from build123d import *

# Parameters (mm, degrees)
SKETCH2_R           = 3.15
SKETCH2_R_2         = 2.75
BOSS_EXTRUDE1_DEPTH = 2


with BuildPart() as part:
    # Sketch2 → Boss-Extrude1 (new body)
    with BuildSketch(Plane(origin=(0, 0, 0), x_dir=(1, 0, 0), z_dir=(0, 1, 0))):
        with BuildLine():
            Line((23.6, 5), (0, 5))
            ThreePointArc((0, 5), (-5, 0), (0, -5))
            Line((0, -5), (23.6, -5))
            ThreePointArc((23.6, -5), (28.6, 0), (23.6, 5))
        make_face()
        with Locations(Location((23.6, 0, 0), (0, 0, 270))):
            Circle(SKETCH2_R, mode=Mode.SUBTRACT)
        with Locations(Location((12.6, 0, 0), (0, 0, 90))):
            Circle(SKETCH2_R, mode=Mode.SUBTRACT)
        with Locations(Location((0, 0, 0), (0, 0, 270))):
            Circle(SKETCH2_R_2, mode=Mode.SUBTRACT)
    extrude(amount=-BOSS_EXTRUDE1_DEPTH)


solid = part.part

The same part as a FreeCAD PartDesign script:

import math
import FreeCAD as App
import Part
import Sketcher

doc = App.newDocument("Part")
body = doc.addObject("PartDesign::Body", "Body")

sketch1 = body.newObject("Sketcher::SketchObject", "Sketch")
sketch1.AttachmentSupport = (doc.getObject("XZ_Plane"), [""])
sketch1.MapMode = "FlatFace"
sketch1.addGeometry([
    Part.LineSegment(App.Vector(23.6, -5, 0), App.Vector(0, -5, 0)),
    Part.ArcOfCircle(Part.Circle(App.Vector(0, 0, 0), App.Vector(0, 0, 1), 5), math.radians(90), math.radians(270)),
    Part.LineSegment(App.Vector(0, 5, 0), App.Vector(23.6, 5, 0)),
    Part.ArcOfCircle(Part.Circle(App.Vector(23.6, 0, 0), App.Vector(0, 0, 1), 5), math.radians(-90), math.radians(90)),
    Part.Circle(App.Vector(0, 0, 0), App.Vector(0, 0, 1), 2.8),
    Part.Circle(App.Vector(12.6, 0, 0), App.Vector(0, 0, 1), 3.1),
    Part.Circle(App.Vector(23.6, 0, 0), App.Vector(0, 0, 1), 3.1),
], False)
sketch1.addConstraint([
    Sketcher.Constraint("Tangent", 0, 2, 1, 2),
    Sketcher.Constraint("Tangent", 1, 1, 2, 1),
    Sketcher.Constraint("Tangent", 2, 2, 3, 2),
    Sketcher.Constraint("Tangent", 3, 1, 0, 1),
    Sketcher.Constraint("Horizontal", 0),
    Sketcher.Constraint("Horizontal", 2),
    Sketcher.Constraint("Coincident", 1, 3, -1, 1),
    Sketcher.Constraint("Coincident", 4, 3, -1, 1),
    Sketcher.Constraint("Coincident", 6, 3, 3, 3),
    Sketcher.Constraint("Equal", 5, 6),
    Sketcher.Constraint("PointOnObject", 5, 3, -1),
    Sketcher.Constraint("Radius", 1, 5.0),
    Sketcher.Constraint("Diameter", 4, 5.5),
    Sketcher.Constraint("Diameter", 5, 6.3),
    Sketcher.Constraint("DistanceX", 0, 2, 0, 1, 23.6),
    Sketcher.Constraint("DistanceX", 5, 3, 3, 3, 11.0),
])
pad1 = body.newObject("PartDesign::Pad", "Pad")
pad1.Profile = sketch1
pad1.Length = 2

doc.recompute()
